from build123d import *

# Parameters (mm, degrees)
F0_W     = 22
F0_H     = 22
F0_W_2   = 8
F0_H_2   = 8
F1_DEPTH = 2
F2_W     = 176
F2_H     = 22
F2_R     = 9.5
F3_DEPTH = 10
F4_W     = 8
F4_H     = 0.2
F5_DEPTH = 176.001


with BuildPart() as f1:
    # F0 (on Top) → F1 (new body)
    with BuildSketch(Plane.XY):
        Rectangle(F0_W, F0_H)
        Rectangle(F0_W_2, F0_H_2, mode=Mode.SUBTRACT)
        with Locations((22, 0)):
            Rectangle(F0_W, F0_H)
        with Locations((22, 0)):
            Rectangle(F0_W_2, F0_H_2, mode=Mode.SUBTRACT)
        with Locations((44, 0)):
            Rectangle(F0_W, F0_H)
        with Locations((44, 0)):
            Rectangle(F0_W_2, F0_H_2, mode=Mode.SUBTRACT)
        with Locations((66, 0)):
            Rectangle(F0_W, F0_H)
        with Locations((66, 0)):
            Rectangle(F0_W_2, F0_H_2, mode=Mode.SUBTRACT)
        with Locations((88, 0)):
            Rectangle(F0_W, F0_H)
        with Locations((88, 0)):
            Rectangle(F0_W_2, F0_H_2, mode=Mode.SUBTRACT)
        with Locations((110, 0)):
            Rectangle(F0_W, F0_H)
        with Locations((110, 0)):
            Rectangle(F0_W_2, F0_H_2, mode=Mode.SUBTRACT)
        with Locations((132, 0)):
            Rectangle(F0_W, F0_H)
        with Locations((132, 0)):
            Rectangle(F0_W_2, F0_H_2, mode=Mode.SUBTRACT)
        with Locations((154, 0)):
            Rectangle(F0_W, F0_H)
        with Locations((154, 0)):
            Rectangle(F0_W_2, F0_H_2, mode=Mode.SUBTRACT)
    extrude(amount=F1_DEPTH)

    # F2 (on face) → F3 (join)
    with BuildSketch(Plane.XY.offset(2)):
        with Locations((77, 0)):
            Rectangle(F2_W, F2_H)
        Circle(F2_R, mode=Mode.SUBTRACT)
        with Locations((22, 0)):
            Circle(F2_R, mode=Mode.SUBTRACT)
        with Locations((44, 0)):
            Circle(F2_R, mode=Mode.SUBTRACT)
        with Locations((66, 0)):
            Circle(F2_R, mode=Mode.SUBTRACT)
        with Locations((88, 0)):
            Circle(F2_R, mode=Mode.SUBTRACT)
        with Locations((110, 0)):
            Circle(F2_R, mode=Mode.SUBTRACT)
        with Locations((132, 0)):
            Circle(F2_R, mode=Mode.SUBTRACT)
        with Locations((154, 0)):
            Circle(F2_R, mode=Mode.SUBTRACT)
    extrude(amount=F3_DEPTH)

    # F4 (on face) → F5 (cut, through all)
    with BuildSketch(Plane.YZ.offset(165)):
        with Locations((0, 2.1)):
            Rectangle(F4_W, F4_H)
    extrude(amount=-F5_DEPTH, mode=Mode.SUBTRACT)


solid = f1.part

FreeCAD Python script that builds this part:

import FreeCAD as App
import Part
import Sketcher
from FreeCAD import Vector


def add_polygon(sketch, points):
    """Adds a closed chain of lines whose ends are joined by coincident constraints."""
    first, n = sketch.GeometryCount, len(points)
    for a, b in zip(points, points[1:] + points[:1]):
        sketch.addGeometry(Part.LineSegment(App.Vector(*a, 0), App.Vector(*b, 0)), False)
    for i in range(n):
        sketch.addConstraint(Sketcher.Constraint("Coincident", first + i, 2, first + (i + 1) % n, 1))

doc = App.newDocument("Part")
body = doc.addObject("PartDesign::Body", "Body")

# Sketch on XY plane
sketch1 = body.newObject("Sketcher::SketchObject", "Sketch")
sketch1.AttachmentSupport = (doc.getObject("XY_Plane"), [""])
sketch1.MapMode = "FlatFace"
add_polygon(sketch1, [(-11, 11), (-11, -11), (165, -11), (165, 11)])  # lines 0-3
add_polygon(sketch1, [(4, -4), (-4, -4), (-4, 4), (4, 4)])  # lines 4-7
add_polygon(sketch1, [(26, -4), (18, -4), (18, 4), (26, 4)])  # lines 8-11
add_polygon(sketch1, [(48, -4), (40, -4), (40, 4), (48, 4)])  # lines 12-15
add_polygon(sketch1, [(70, -4), (62, -4), (62, 4), (70, 4)])  # lines 16-19
add_polygon(sketch1, [(92, -4), (84, -4), (84, 4), (92, 4)])  # lines 20-23
add_polygon(sketch1, [(114, -4), (106, -4), (106, 4), (114, 4)])  # lines 24-27
add_polygon(sketch1, [(136, -4), (128, -4), (128, 4), (136, 4)])  # lines 28-31
add_polygon(sketch1, [(158, -4), (150, -4), (150, 4), (158, 4)])  # lines 32-35
sketch1.addConstraint([
    Sketcher.Constraint("Vertical", 0),
    Sketcher.Constraint("Horizontal", 1),
    Sketcher.Constraint("Vertical", 2),
    Sketcher.Constraint("Horizontal", 3),
    Sketcher.Constraint("Horizontal", 4),
    Sketcher.Constraint("Vertical", 5),
    Sketcher.Constraint("Horizontal", 6),
    Sketcher.Constraint("Vertical", 7),
    Sketcher.Constraint("Horizontal", 8),
    Sketcher.Constraint("Vertical", 9),
    Sketcher.Constraint("Horizontal", 10),
    Sketcher.Constraint("Vertical", 11),
    Sketcher.Constraint("Horizontal", 12),
    Sketcher.Constraint("Vertical", 13),
    Sketcher.Constraint("Horizontal", 14),
    Sketcher.Constraint("Vertical", 15),
    Sketcher.Constraint("Horizontal", 16),
    Sketcher.Constraint("Vertical", 17),
    Sketcher.Constraint("Horizontal", 18),
    Sketcher.Constraint("Vertical", 19),
    Sketcher.Constraint("Horizontal", 20),
    Sketcher.Constraint("Vertical", 21),
    Sketcher.Constraint("Horizontal", 22),
    Sketcher.Constraint("Vertical", 23),
    Sketcher.Constraint("Horizontal", 24),
    Sketcher.Constraint("Vertical", 25),
    Sketcher.Constraint("Horizontal", 26),
    Sketcher.Constraint("Vertical", 27),
    Sketcher.Constraint("Horizontal", 28),
    Sketcher.Constraint("Vertical", 29),
    Sketcher.Constraint("Horizontal", 30),
    Sketcher.Constraint("Vertical", 31),
    Sketcher.Constraint("Horizontal", 32),
    Sketcher.Constraint("Vertical", 33),
    Sketcher.Constraint("Horizontal", 34),
    Sketcher.Constraint("Vertical", 35),
    Sketcher.Constraint("Symmetric", 4, 2, 6, 2, -1, 1),
    Sketcher.Constraint("Horizontal", 7, 2, 8, 2),
    Sketcher.Constraint("Horizontal", 6, 2, 9, 2),
    Sketcher.Constraint("Horizontal", 11, 2, 12, 2),
    Sketcher.Constraint("Horizontal", 10, 2, 13, 2),
    Sketcher.Constraint("Horizontal", 15, 2, 16, 2),
    Sketcher.Constraint("Horizontal", 14, 2, 17, 2),
    Sketcher.Constraint("Horizontal", 19, 2, 20, 2),
    Sketcher.Constraint("Horizontal", 18, 2, 21, 2),
    Sketcher.Constraint("Horizontal", 23, 2, 24, 2),
    Sketcher.Constraint("Horizontal", 22, 2, 25, 2),
    Sketcher.Constraint("Horizontal", 27, 2, 28, 2),
    Sketcher.Constraint("Horizontal", 26, 2, 29, 2),
    Sketcher.Constraint("Horizontal", 31, 2, 32, 2),
    Sketcher.Constraint("Horizontal", 30, 2, 33, 2),
    Sketcher.Constraint("Equal", 6, 8),
    Sketcher.Constraint("Equal", 10, 12),
    Sketcher.Constraint("Equal", 14, 16),
    Sketcher.Constraint("Equal", 18, 20),
    Sketcher.Constraint("Equal", 22, 24),
    Sketcher.Constraint("Equal", 26, 28),
    Sketcher.Constraint("Equal", 30, 32),
    Sketcher.Constraint("Equal", 34, 5),
    Sketcher.Constraint("DistanceX", 1, 1, 1, 2, 176.0),
    Sketcher.Constraint("DistanceX", 4, 2, 4, 1, 8.0),
    Sketcher.Constraint("DistanceY", 0, 2, 0, 1, 22.0),
    Sketcher.Constraint("DistanceX", 0, 2, -1, 1, 11.0),
    Sketcher.Constraint("DistanceY", 0, 2, -1, 1, 11.0),
    Sketcher.Constraint("DistanceX", -1, 1, 8, 2, 18.0),
    Sketcher.Constraint("DistanceX", -1, 1, 12, 2, 40.0),
    Sketcher.Constraint("DistanceX", -1, 1, 16, 2, 62.0),
    Sketcher.Constraint("DistanceX", -1, 1, 20, 2, 84.0),
    Sketcher.Constraint("DistanceX", -1, 1, 24, 2, 106.0),
    Sketcher.Constraint("DistanceX", -1, 1, 28, 2, 128.0),
    Sketcher.Constraint("DistanceX", -1, 1, 32, 2, 150.0),
])
pad1 = body.newObject("PartDesign::Pad", "Pad")
pad1.Profile = sketch1
pad1.Length = 2

# Sketch on XY plane
sketch2 = body.newObject("Sketcher::SketchObject", "Sketch001")
sketch2.AttachmentSupport = (doc.getObject("XY_Plane"), [""])
sketch2.MapMode = "FlatFace"
sketch2.AttachmentOffset = App.Placement(Vector(0, 0, 2), App.Rotation())
add_polygon(sketch2, [(-11, 11), (-11, -11), (165, -11), (165, 11)])  # lines 0-3
sketch2.addGeometry(Part.Circle(Vector(0, 0, 0), Vector(0, 0, 1), 10), False)  # 4
sketch2.addGeometry(Part.Circle(Vector(22, 0, 0), Vector(0, 0, 1), 10), False)  # 5
sketch2.addGeometry(Part.Circle(Vector(44, 0, 0), Vector(0, 0, 1), 10), False)  # 6
sketch2.addGeometry(Part.Circle(Vector(66, 0, 0), Vector(0, 0, 1), 10), False)  # 7
sketch2.addGeometry(Part.Circle(Vector(88, 0, 0), Vector(0, 0, 1), 10), False)  # 8
sketch2.addGeometry(Part.Circle(Vector(110, 0, 0), Vector(0, 0, 1), 10), False)  # 9
sketch2.addGeometry(Part.Circle(Vector(132, 0, 0), Vector(0, 0, 1), 10), False)  # 10
sketch2.addGeometry(Part.Circle(Vector(154, 0, 0), Vector(0, 0, 1), 10), False)  # 11
sketch2.addConstraint([
    Sketcher.Constraint("Vertical", 0),
    Sketcher.Constraint("Horizontal", 1),
    Sketcher.Constraint("Vertical", 2),
    Sketcher.Constraint("Horizontal", 3),
    Sketcher.Constraint("Coincident", 4, 3, -1, 1),
    Sketcher.Constraint("Equal", 4, 5),
    Sketcher.Constraint("Equal", 5, 6),
    Sketcher.Constraint("Equal", 6, 7),
    Sketcher.Constraint("Equal", 7, 8),
    Sketcher.Constraint("Equal", 8, 9),
    Sketcher.Constraint("Equal", 9, 10),
    Sketcher.Constraint("Equal", 10, 11),
    Sketcher.Constraint("PointOnObject", 5, 3, -1),
    Sketcher.Constraint("PointOnObject", 6, 3, -1),
    Sketcher.Constraint("PointOnObject", 7, 3, -1),
    Sketcher.Constraint("PointOnObject", 8, 3, -1),
    Sketcher.Constraint("PointOnObject", 9, 3, -1),
    Sketcher.Constraint("PointOnObject", 10, 3, -1),
    Sketcher.Constraint("PointOnObject", 11, 3, -1),
    Sketcher.Constraint("Diameter", 4, 19.0),
    Sketcher.Constraint("DistanceX", 1, 1, 1, 2, 176.0),
    Sketcher.Constraint("DistanceY", 0, 2, 0, 1, 22.0),
    Sketcher.Constraint("DistanceX", -1, 1, 5, 3, 22.0),
    Sketcher.Constraint("DistanceX", -1, 1, 6, 3, 44.0),
    Sketcher.Constraint("DistanceX", -1, 1, 7, 3, 66.0),
    Sketcher.Constraint("DistanceX", -1, 1, 8, 3, 88.0),
    Sketcher.Constraint("DistanceX", -1, 1, 9, 3, 110.0),
    Sketcher.Constraint("DistanceX", -1, 1, 10, 3, 132.0),
    Sketcher.Constraint("DistanceX", -1, 1, 11, 3, 154.0),
    Sketcher.Constraint("DistanceX", 0, 2, -1, 1, 11.0),
    Sketcher.Constraint("DistanceY", 0, 2, -1, 1, 11.0),
])
pad2 = body.newObject("PartDesign::Pad", "Pad001")
pad2.Profile = sketch2
pad2.Length = 10

# Sketch on YZ plane
sketch3 = body.newObject("Sketcher::SketchObject", "Sketch002")
sketch3.AttachmentSupport = (doc.getObject("YZ_Plane"), [""])
sketch3.MapMode = "FlatFace"
sketch3.AttachmentOffset = App.Placement(Vector(0, 0, 165), App.Rotation())
add_polygon(sketch3, [(-4, 2.2), (-4, 2), (4, 2), (4, 2.2)])  # lines 0-3
sketch3.addConstraint([
    Sketcher.Constraint("Vertical", 0),
    Sketcher.Constraint("Horizontal", 1),
    Sketcher.Constraint("Vertical", 2),
    Sketcher.Constraint("Horizontal", 3),
    Sketcher.Constraint("DistanceX", 1, 1, 1, 2, 8.0),
    Sketcher.Constraint("DistanceY", 0, 2, 0, 1, 0.2),
    Sketcher.Constraint("DistanceX", 0, 2, -1, 1, 4.0),
    Sketcher.Constraint("DistanceY", -1, 1, 0, 2, 2.0),
])
pocket1 = body.newObject("PartDesign::Pocket", "Pocket")
pocket1.Profile = sketch3
pocket1.Type = "ThroughAll"

doc.recompute()
